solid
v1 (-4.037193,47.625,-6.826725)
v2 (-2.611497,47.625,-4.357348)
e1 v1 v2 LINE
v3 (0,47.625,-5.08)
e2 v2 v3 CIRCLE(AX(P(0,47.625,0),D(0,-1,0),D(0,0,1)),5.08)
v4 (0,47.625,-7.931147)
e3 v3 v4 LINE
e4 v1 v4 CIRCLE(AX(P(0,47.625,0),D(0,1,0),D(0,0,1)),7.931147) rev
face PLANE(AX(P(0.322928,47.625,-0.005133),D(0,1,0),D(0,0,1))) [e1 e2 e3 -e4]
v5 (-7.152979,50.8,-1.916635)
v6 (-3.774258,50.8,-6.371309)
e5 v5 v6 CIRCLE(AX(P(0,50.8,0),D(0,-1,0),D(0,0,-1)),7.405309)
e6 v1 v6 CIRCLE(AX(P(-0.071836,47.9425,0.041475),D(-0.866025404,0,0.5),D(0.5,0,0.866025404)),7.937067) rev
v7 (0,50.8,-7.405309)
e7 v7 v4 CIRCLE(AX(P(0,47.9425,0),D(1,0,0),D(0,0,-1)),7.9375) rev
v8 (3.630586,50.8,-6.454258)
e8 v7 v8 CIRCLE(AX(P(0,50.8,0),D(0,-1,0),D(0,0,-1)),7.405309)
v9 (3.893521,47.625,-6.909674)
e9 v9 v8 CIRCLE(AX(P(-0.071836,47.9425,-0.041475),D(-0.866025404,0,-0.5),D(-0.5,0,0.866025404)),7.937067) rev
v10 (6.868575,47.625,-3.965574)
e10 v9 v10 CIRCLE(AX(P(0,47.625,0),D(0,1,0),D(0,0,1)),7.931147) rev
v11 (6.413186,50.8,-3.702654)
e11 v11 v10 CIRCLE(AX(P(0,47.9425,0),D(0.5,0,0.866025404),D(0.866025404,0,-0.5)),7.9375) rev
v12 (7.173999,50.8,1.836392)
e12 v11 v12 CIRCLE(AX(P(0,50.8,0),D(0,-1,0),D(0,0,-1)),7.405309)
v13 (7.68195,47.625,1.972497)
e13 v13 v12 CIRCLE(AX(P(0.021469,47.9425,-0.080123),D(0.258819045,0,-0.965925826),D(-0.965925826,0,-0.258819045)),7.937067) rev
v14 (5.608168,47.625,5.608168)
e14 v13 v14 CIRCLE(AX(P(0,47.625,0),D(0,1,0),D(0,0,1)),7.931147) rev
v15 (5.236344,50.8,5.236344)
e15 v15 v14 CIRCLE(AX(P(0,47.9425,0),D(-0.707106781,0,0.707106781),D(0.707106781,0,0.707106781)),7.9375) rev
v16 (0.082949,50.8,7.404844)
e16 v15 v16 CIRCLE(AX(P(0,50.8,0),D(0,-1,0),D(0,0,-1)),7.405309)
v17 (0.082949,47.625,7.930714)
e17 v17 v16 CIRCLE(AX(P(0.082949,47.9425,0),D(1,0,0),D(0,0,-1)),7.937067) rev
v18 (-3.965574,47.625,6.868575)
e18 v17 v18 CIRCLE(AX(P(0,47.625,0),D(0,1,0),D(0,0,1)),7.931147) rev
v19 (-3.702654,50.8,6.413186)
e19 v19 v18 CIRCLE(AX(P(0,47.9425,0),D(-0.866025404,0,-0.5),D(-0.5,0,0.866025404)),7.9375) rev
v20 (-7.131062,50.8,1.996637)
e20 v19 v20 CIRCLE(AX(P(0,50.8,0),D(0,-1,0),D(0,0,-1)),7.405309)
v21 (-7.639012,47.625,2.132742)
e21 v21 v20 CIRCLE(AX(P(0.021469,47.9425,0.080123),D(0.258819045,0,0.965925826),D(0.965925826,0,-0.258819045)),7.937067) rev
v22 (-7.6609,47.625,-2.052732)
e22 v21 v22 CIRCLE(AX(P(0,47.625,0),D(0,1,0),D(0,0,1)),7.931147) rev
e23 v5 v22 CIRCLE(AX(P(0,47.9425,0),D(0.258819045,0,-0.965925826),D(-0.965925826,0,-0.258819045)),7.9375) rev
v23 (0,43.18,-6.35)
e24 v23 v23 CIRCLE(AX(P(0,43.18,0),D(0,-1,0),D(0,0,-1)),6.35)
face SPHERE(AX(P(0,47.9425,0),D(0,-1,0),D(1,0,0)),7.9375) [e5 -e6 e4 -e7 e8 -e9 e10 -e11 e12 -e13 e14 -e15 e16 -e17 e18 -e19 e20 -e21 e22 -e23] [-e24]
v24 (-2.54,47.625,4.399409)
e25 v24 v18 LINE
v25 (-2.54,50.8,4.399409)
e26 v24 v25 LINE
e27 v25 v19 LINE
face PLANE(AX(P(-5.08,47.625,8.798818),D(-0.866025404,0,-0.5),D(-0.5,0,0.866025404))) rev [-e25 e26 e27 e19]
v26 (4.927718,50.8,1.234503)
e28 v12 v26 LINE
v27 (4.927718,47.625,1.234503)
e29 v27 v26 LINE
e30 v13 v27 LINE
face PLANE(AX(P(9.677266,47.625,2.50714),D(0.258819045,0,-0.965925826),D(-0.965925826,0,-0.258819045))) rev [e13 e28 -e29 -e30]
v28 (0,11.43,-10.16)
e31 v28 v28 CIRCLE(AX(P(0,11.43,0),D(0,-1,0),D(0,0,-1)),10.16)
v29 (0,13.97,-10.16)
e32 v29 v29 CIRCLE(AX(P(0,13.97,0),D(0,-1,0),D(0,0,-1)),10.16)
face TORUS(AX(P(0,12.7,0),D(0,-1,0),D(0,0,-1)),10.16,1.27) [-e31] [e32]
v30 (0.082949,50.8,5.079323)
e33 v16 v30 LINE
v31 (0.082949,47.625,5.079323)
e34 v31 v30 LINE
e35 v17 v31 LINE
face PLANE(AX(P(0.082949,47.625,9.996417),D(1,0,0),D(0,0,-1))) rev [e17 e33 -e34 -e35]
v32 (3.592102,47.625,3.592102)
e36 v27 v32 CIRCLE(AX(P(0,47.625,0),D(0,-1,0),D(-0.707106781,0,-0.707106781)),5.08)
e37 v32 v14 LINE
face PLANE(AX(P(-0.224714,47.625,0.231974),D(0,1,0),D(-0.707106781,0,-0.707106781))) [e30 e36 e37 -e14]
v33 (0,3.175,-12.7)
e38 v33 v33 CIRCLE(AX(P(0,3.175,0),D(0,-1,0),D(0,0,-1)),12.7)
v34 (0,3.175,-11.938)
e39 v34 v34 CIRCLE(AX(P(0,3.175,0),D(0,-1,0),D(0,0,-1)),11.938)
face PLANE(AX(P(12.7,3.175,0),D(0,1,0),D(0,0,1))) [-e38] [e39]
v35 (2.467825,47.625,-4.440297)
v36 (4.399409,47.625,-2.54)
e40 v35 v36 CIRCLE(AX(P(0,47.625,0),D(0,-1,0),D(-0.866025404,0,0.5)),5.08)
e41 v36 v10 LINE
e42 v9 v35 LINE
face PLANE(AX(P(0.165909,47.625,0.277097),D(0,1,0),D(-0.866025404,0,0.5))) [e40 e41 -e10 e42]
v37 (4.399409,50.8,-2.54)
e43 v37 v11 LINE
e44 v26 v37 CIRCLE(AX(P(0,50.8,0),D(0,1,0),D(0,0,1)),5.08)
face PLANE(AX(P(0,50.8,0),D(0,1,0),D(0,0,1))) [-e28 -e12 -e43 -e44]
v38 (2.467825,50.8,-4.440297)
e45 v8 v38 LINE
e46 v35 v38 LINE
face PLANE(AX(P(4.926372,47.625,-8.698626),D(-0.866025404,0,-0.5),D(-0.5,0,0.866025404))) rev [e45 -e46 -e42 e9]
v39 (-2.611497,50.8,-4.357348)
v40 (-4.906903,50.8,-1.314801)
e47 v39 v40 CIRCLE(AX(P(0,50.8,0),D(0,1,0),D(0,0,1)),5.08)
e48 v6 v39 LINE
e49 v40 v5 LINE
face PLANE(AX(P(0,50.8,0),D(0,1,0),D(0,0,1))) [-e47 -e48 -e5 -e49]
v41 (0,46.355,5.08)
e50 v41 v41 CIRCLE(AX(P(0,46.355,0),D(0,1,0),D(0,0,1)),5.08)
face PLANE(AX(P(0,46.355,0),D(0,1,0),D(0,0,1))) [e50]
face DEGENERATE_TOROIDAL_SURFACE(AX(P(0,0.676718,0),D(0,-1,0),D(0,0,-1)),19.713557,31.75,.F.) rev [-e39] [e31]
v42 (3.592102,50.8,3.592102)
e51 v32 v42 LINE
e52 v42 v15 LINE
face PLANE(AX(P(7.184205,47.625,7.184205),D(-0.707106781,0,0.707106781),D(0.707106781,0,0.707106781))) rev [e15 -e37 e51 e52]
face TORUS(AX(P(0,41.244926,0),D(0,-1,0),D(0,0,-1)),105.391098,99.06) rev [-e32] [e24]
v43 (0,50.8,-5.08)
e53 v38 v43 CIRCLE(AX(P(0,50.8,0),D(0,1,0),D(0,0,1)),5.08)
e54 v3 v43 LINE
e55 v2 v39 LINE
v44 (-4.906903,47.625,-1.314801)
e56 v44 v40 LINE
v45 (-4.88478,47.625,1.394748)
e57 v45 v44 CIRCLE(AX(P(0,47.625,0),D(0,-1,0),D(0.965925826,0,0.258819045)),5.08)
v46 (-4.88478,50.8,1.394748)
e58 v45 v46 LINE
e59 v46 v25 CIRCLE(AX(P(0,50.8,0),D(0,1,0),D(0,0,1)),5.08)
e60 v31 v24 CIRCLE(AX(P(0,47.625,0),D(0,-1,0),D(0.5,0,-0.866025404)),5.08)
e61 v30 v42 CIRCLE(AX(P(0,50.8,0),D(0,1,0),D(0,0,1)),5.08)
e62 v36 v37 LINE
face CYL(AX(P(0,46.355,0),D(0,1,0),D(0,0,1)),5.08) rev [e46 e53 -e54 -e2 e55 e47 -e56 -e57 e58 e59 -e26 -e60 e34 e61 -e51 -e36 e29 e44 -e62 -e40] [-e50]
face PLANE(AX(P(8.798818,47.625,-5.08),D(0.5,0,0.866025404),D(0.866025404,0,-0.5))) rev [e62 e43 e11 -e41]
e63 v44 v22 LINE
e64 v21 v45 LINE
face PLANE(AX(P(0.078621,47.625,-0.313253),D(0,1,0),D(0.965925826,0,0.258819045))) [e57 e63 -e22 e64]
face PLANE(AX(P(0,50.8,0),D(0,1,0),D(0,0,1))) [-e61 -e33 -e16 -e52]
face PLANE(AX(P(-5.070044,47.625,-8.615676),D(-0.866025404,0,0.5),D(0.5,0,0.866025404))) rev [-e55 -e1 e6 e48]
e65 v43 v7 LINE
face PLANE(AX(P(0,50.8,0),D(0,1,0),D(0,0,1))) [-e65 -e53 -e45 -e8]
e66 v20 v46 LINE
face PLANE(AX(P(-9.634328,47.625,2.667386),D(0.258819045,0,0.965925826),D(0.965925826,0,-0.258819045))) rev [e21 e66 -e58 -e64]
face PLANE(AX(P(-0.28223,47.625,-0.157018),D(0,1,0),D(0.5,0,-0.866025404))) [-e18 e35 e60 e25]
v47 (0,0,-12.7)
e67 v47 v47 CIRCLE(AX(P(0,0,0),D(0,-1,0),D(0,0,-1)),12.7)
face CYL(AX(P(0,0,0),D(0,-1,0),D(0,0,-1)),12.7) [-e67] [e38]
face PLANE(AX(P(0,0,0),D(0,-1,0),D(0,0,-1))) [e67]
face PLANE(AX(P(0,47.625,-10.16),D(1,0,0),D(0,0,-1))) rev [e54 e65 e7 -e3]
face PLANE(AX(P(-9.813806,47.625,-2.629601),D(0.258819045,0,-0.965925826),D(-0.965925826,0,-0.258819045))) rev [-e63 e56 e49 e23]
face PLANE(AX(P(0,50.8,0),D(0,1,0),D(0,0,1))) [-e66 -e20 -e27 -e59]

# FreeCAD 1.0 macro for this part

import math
import FreeCAD as App
import Part
import Sketcher

V = App.Vector
Q = App.Units.Quantity

doc = App.newDocument("Part")
body = doc.addObject("PartDesign::Body", "Body")

sketch1 = body.newObject("Sketcher::SketchObject", "Sketch")
sketch1.AttachmentSupport = (doc.getObject("XY_Plane"), [""])
sketch1.MapMode = "FlatFace"
sketch1.addGeometry([
    Part.LineSegment(V(0, 0, 0), V(12.7, 0, 0)),
    Part.LineSegment(V(12.7, 0, 0), V(12.7, 3.2, 0)),
    Part.LineSegment(V(12.7, 3.2, 0), V(11.9, 3.2, 0)),
    Part.ArcOfCircle(Part.Circle(V(-19.7, 0.7, 0), V(0, 0, 1), 31.7), math.radians(4.51), math.radians(19.8)),
    Part.ArcOfCircle(Part.Circle(V(10.2, 12.7, 0), V(0, 0, 1), 1.3), math.radians(-90), math.radians(90)),
    Part.ArcOfCircle(Part.Circle(V(105.4, 41.2, 0), V(0, 0, 1), 99.1), math.radians(178.88), math.radians(195.98)),
    Part.ArcOfCircle(Part.Circle(V(0, 47.9, 0), V(0, 0, 1), 7.9), math.radians(-37), math.radians(21)),
    Part.LineSegment(V(7.4, 50.8, 0), V(0, 50.8, 0)),
    Part.LineSegment(V(0, 50.8, 0), V(0, 0, 0)),
], False)
sketch1.addConstraint([
    Sketcher.Constraint("Coincident", 0, 2, 1, 1),
    Sketcher.Constraint("Coincident", 1, 2, 2, 1),
    Sketcher.Constraint("Coincident", 2, 2, 3, 1),
    Sketcher.Constraint("Coincident", 3, 2, 4, 1),
    Sketcher.Constraint("Coincident", 4, 2, 5, 2),
    Sketcher.Constraint("Coincident", 5, 1, 6, 1),
    Sketcher.Constraint("Coincident", 6, 2, 7, 1),
    Sketcher.Constraint("Coincident", 7, 2, 8, 1),
    Sketcher.Constraint("Coincident", 8, 2, 0, 1),
    Sketcher.Constraint("Horizontal", 0),
    Sketcher.Constraint("Vertical", 1),
    Sketcher.Constraint("Horizontal", 2),
    Sketcher.Constraint("Horizontal", 7),
    Sketcher.Constraint("Vertical", 8),
    Sketcher.Constraint("Coincident", 8, 2, -1, 1),
    Sketcher.Constraint("PointOnObject", 6, 3, -2),
    Sketcher.Constraint("Vertical", 4, 3, 3, 2),
    Sketcher.Constraint("Vertical", 3, 2, 4, 2),
    Sketcher.Constraint("Radius", 5, Q("3.9 in")),
    Sketcher.Constraint("DistanceY", 8, 2, 8, 1, Q("2 in")),
    Sketcher.Constraint("Radius", 3, Q("1.25 in")),
    Sketcher.Constraint("Radius", 4, Q("0.05 in")),
    Sketcher.Constraint("DistanceX", 0, 1, 0, 2, Q("0.5 in")),
    Sketcher.Constraint("Radius", 6, Q("0.3125 in")),
    Sketcher.Constraint("DistanceX", 2, 2, 2, 1, Q("0.03 in")),
    Sketcher.Constraint("DistanceX", -1, 1, 4, 3, Q("0.4 in")),
    Sketcher.Constraint("DistanceY", -1, 1, 4, 3, Q("0.5 in")),
    Sketcher.Constraint("DistanceY", -1, 1, 5, 1, Q("1.7 in")),
    Sketcher.Constraint("DistanceY", 1, 1, 1, 2, Q("0.125 in")),
    Sketcher.Constraint("DistanceX", -1, 1, 5, 1, Q("0.25 in")),
])
revolution = body.newObject("PartDesign::Revolution", "Revolution")
revolution.Profile = sketch1
revolution.ReferenceAxis = (sketch1, ["V_Axis"])
revolution.Angle = 360

sketch2 = body.newObject("Sketcher::SketchObject", "Sketch001")
sketch2.AttachmentSupport = (doc.getObject("XZ_Plane"), [""])
sketch2.MapMode = "FlatFace"
sketch2.AttachmentOffset = App.Placement(V(0, 0, -2 * 25.4), App.Rotation())
sketch2.addGeometry(Part.Circle(V(0, 0, 0), V(0, 0, 1), 5), False)
sketch2.addConstraint([
    Sketcher.Constraint("Coincident", 0, 3, -1, 1),
    Sketcher.Constraint("Diameter", 0, Q("0.4 in")),
])
pocket1 = body.newObject("PartDesign::Pocket", "Pocket")
pocket1.Profile = sketch2
pocket1.Length = Q("0.175 in")
pocket1.Reversed = True

sketch3 = body.newObject("Sketcher::SketchObject", "Sketch002")
sketch3.AttachmentSupport = (doc.getObject("XZ_Plane"), [""])
sketch3.MapMode = "FlatFace"
sketch3.AttachmentOffset = App.Placement(V(0, 0, -2 * 25.4), App.Rotation())
sketch3.addGeometry([
    Part.LineSegment(V(0, -5.1, 0), V(0, -10.2, 0)),
    Part.ArcOfCircle(Part.Circle(V(0.3, 0, 0), V(0, 0, 1), 10.2), math.radians(-122), math.radians(-92)),
    Part.LineSegment(V(-5.1, -8.6, 0), V(-2.6, -4.4, 0)),
    Part.ArcOfCircle(Part.Circle(V(0, 0, 0), V(0, 0, 1), 5.1), math.radians(-121), math.radians(-90)),
], False)
sketch3.addConstraint([
    Sketcher.Constraint("Coincident", 0, 2, 1, 2),
    Sketcher.Constraint("Coincident", 1, 1, 2, 1),
    Sketcher.Constraint("Coincident", 2, 2, 3, 1),
    Sketcher.Constraint("Coincident", 3, 2, 0, 1),
    Sketcher.Constraint("Vertical", 0),
    Sketcher.Constraint("Coincident", 3, 3, -1, 1),
    Sketcher.Constraint("PointOnObject", 0, 2, -2),
    Sketcher.Constraint("Radius", 1, Q("0.4 in")),
    Sketcher.Constraint("Radius", 3, Q("0.2 in")),
    Sketcher.Constraint("DistanceY", 0, 2, 0, 1, Q("0.2 in")),
    Sketcher.Constraint("Angle", 2, Q("60 deg")),
    Sketcher.Constraint("DistanceY", 1, 1, -1, 1, Q("0.3391999 in")),
    Sketcher.Constraint("DistanceY", 1, 1, 2, 2, 4.258328),
])
pocket2 = body.newObject("PartDesign::Pocket", "Pocket001")
pocket2.Profile = sketch3
pocket2.Length = Q("0.125 in")
pocket2.Reversed = True
doc.recompute()

polarpattern = body.newObject("PartDesign::PolarPattern", "PolarPattern")
polarpattern.Originals = [pocket2]
polarpattern.Axis = (doc.getObject("Y_Axis"), [""])
polarpattern.Angle = 300
polarpattern.Occurrences = 5
body.Tip = polarpattern

doc.recompute()
